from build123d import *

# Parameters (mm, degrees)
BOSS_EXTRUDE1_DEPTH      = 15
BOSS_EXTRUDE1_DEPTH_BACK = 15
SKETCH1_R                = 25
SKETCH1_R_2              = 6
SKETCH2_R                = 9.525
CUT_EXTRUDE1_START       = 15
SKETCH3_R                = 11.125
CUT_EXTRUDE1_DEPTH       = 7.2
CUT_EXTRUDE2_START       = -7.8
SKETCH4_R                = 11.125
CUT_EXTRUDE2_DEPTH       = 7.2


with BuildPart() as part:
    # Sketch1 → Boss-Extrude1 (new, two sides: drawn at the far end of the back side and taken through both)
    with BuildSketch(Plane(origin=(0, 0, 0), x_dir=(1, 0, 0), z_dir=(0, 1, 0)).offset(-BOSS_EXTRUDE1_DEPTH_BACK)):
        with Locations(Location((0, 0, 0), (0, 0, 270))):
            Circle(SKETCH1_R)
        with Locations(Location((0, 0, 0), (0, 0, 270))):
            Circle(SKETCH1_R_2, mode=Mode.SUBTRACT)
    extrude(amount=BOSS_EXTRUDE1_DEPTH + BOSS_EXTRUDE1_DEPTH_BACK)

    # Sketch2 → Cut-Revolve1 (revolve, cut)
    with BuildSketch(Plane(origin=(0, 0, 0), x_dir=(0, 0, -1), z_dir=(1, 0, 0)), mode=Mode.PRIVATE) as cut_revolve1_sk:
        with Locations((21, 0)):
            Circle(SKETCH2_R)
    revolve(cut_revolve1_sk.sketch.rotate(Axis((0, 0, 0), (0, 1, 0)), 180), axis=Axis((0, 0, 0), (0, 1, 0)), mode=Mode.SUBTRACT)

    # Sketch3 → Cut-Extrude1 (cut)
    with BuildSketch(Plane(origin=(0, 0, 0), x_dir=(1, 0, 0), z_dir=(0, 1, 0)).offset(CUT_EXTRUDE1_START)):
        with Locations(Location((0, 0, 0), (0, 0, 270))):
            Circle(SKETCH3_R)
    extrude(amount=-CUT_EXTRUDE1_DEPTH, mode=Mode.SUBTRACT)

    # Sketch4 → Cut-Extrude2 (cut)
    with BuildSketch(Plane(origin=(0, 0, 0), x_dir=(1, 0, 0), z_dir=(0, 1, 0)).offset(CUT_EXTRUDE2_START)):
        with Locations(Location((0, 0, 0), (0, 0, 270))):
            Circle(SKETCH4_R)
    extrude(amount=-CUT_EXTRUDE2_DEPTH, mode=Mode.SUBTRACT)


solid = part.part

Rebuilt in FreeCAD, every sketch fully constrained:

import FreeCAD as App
import Part
import Sketcher

V = App.Vector

doc = App.newDocument("Part")
body = doc.addObject("PartDesign::Body", "Body")

sketch1 = body.newObject("Sketcher::SketchObject", "Sketch")
sketch1.AttachmentSupport = (doc.getObject("XZ_Plane"), [""])
sketch1.MapMode = "FlatFace"
sketch1.addGeometry([
    Part.Circle(V(0, 0, 0), V(0, 0, 1), 25),
    Part.Circle(V(0, 0, 0), V(0, 0, 1), 6),
], False)
sketch1.addConstraint([
    Sketcher.Constraint("Coincident", 0, 3, -1, 1),
    Sketcher.Constraint("Coincident", 1, 3, -1, 1),
    Sketcher.Constraint("Diameter", 0, 50.0),
    Sketcher.Constraint("Diameter", 1, 12.0),
])
pad1 = body.newObject("PartDesign::Pad", "Pad")
pad1.Profile = sketch1
pad1.Type = "TwoLengths"
pad1.Length = 15
pad1.Length2 = 15
pad1.Reversed = True

sketch2 = body.newObject("Sketcher::SketchObject", "Sketch001")
sketch2.AttachmentSupport = (doc.getObject("YZ_Plane"), [""])
sketch2.MapMode = "FlatFace"
sketch2.addGeometry(Part.Circle(V(0, -21, 0), V(0, 0, 1), 10), False)
sketch2.addConstraint([
    Sketcher.Constraint("PointOnObject", 0, 3, -2),
    Sketcher.Constraint("Diameter", 0, 19.05),
    Sketcher.Constraint("DistanceY", 0, 3, -1, 1, 21.0),
])
groove = body.newObject("PartDesign::Groove", "Groove")
groove.Profile = sketch2
groove.ReferenceAxis = (sketch2, ["H_Axis"])
groove.Angle = 360

sketch3 = body.newObject("Sketcher::SketchObject", "Sketch002")
sketch3.AttachmentSupport = (doc.getObject("XZ_Plane"), [""])
sketch3.MapMode = "FlatFace"
sketch3.AttachmentOffset = App.Placement(V(0, 0, -15), App.Rotation())
sketch3.addGeometry(Part.Circle(V(0, 0, 0), V(0, 0, 1), 11), False)
sketch3.addConstraint([
    Sketcher.Constraint("Coincident", 0, 3, -1, 1),
    Sketcher.Constraint("Diameter", 0, 22.25),
])
pocket1 = body.newObject("PartDesign::Pocket", "Pocket")
pocket1.Profile = sketch3
pocket1.Length = 7.2
pocket1.Reversed = True

sketch4 = body.newObject("Sketcher::SketchObject", "Sketch003")
sketch4.AttachmentSupport = (doc.getObject("XZ_Plane"), [""])
sketch4.MapMode = "FlatFace"
sketch4.AttachmentOffset = App.Placement(V(0, 0, 7.8), App.Rotation())
sketch4.addGeometry(Part.Circle(V(0, 0, 0), V(0, 0, 1), 11), False)
sketch4.addConstraint([
    Sketcher.Constraint("Coincident", 0, 3, -1, 1),
    Sketcher.Constraint("Diameter", 0, 22.25),
])
pocket2 = body.newObject("PartDesign::Pocket", "Pocket001")
pocket2.Profile = sketch4
pocket2.Length = 7.2
pocket2.Reversed = True

doc.recompute()
